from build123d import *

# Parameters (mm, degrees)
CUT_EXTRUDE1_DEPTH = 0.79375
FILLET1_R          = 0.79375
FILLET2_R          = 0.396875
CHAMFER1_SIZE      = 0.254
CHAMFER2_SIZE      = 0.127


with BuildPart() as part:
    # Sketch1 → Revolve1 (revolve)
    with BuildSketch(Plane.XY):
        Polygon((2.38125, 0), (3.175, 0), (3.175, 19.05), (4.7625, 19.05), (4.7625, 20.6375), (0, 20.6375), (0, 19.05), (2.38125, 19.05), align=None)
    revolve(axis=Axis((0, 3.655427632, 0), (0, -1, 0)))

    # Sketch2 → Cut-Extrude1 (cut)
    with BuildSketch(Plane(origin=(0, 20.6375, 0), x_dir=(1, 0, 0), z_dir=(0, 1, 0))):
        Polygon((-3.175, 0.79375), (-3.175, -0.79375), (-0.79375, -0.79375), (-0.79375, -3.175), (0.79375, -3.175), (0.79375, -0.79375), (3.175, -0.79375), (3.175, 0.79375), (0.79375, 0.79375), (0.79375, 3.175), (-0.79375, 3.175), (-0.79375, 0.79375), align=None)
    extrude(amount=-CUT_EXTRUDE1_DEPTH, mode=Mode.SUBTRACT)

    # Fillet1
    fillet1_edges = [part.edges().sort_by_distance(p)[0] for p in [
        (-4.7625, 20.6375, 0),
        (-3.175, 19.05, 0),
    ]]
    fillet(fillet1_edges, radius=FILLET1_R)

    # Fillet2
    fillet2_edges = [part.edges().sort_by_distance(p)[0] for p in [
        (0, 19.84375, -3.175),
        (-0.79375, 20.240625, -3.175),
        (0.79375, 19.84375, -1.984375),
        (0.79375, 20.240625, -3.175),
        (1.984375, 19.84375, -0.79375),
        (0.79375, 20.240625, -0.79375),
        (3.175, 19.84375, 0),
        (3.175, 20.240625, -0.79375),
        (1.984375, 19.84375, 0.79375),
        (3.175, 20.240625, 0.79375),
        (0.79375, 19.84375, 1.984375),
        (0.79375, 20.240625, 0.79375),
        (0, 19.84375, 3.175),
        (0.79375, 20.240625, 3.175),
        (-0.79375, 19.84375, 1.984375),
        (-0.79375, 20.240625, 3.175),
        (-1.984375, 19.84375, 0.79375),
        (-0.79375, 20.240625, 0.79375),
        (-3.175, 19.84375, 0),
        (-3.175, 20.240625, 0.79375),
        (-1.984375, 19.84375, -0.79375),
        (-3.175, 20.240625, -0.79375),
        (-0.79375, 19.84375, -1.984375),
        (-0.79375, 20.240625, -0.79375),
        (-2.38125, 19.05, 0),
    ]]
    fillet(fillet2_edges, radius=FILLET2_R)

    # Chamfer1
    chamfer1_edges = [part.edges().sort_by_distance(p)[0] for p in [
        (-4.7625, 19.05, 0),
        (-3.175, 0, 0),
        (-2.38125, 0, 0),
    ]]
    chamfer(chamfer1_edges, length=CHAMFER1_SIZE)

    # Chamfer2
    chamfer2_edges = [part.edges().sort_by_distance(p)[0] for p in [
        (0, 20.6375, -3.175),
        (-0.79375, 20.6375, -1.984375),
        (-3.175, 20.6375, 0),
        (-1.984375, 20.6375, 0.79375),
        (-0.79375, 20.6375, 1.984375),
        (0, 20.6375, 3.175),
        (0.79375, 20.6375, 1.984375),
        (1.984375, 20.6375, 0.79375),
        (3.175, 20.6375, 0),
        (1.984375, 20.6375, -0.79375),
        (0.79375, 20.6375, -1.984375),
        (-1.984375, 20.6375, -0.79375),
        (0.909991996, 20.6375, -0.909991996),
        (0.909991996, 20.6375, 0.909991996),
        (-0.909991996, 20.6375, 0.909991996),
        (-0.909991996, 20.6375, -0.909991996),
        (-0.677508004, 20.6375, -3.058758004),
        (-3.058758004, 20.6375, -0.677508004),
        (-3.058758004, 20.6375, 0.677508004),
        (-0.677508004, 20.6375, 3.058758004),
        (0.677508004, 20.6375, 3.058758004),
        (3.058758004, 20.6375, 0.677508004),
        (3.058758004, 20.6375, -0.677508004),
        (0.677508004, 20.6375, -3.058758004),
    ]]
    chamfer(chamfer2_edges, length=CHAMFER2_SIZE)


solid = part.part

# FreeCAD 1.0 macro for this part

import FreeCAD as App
import Part
import Sketcher

V = App.Vector
Q = App.Units.Quantity


def edges_at(feature, points):
    """Names of the edges that pass closest to the given points."""
    edges = feature.Shape.Edges
    near = lambda p: min(range(len(edges)), key=lambda i: edges[i].distToShape(Part.Vertex(*p))[0])
    return sorted({f"Edge{near(p) + 1}" for p in points})

doc = App.newDocument("Part")
body = doc.addObject("PartDesign::Body", "Body")

# Sketch on XY plane
sketch1 = body.newObject("Sketcher::SketchObject", "Sketch")
sketch1.AttachmentSupport = (doc.getObject("XY_Plane"), [""])
sketch1.MapMode = "FlatFace"
sketch1.addGeometry(Part.LineSegment(V(2.4, 0, 0), V(3.2, 0, 0)), False)
sketch1.addGeometry(Part.LineSegment(V(3.2, 0, 0), V(3.2, 19.1, 0)), False)
sketch1.addGeometry(Part.LineSegment(V(3.2, 19.1, 0), V(4.8, 19.1, 0)), False)
sketch1.addGeometry(Part.LineSegment(V(4.8, 19.1, 0), V(4.8, 20.6, 0)), False)
sketch1.addGeometry(Part.LineSegment(V(4.8, 20.6, 0), V(0, 20.6, 0)), False)
sketch1.addGeometry(Part.LineSegment(V(0, 20.6, 0), V(0, 19.1, 0)), False)
sketch1.addGeometry(Part.LineSegment(V(0, 19.1, 0), V(2.4, 19.1, 0)), False)
sketch1.addGeometry(Part.LineSegment(V(2.4, 19.1, 0), V(2.4, 0, 0)), False)
sketch1.addConstraint(Sketcher.Constraint("Coincident", 0, 2, 1, 1))
sketch1.addConstraint(Sketcher.Constraint("Coincident", 1, 2, 2, 1))
sketch1.addConstraint(Sketcher.Constraint("Coincident", 2, 2, 3, 1))
sketch1.addConstraint(Sketcher.Constraint("Coincident", 3, 2, 4, 1))
sketch1.addConstraint(Sketcher.Constraint("Coincident", 4, 2, 5, 1))
sketch1.addConstraint(Sketcher.Constraint("Coincident", 5, 2, 6, 1))
sketch1.addConstraint(Sketcher.Constraint("Coincident", 6, 2, 7, 1))
sketch1.addConstraint(Sketcher.Constraint("Coincident", 7, 2, 0, 1))
sketch1.addConstraint(Sketcher.Constraint("Horizontal", 0))
sketch1.addConstraint(Sketcher.Constraint("Vertical", 1))
sketch1.addConstraint(Sketcher.Constraint("Horizontal", 2))
sketch1.addConstraint(Sketcher.Constraint("Vertical", 3))
sketch1.addConstraint(Sketcher.Constraint("Horizontal", 4))
sketch1.addConstraint(Sketcher.Constraint("Vertical", 5))
sketch1.addConstraint(Sketcher.Constraint("Horizontal", 6))
sketch1.addConstraint(Sketcher.Constraint("Vertical", 7))
sketch1.addConstraint(Sketcher.Constraint("PointOnObject", 0, 2, -1))
sketch1.addConstraint(Sketcher.Constraint("PointOnObject", 4, 2, -2))
sketch1.addConstraint(Sketcher.Constraint("Horizontal", 2, 2, 5, 2))
sketch1.addConstraint(Sketcher.Constraint("Equal", 2, 3))
sketch1.addConstraint(Sketcher.Constraint("DistanceY", 1, 1, 1, 2, Q("0.75 in")))
sketch1.addConstraint(Sketcher.Constraint("DistanceX", 0, 1, 0, 2, Q("0.03125 in")))
sketch1.addConstraint(Sketcher.Constraint("DistanceX", 2, 1, 2, 2, Q("0.0625 in")))
sketch1.addConstraint(Sketcher.Constraint("DistanceX", 4, 2, 4, 1, Q("0.1875 in")))
revolution = body.newObject("PartDesign::Revolution", "Revolution")
revolution.Profile = sketch1
revolution.ReferenceAxis = (sketch1, ["V_Axis"])
revolution.Angle = 360

# Sketch on XZ plane
sketch2 = body.newObject("Sketcher::SketchObject", "Sketch001")
sketch2.AttachmentSupport = (doc.getObject("XZ_Plane"), [""])
sketch2.MapMode = "FlatFace"
sketch2.AttachmentOffset = App.Placement(V(0, 0, -0.8125 * 25.4), App.Rotation())
sketch2.addGeometry(Part.LineSegment(V(-3.2, -0.8, 0), V(-3.2, 0.8, 0)), False)
sketch2.addGeometry(Part.LineSegment(V(-3.2, 0.8, 0), V(-0.8, 0.8, 0)), False)
sketch2.addGeometry(Part.LineSegment(V(-0.8, 0.8, 0), V(-0.8, 3.2, 0)), False)
sketch2.addGeometry(Part.LineSegment(V(-0.8, 3.2, 0), V(0.8, 3.2, 0)), False)
sketch2.addGeometry(Part.LineSegment(V(0.8, 3.2, 0), V(0.8, 0.8, 0)), False)
sketch2.addGeometry(Part.LineSegment(V(0.8, 0.8, 0), V(3.2, 0.8, 0)), False)
sketch2.addGeometry(Part.LineSegment(V(3.2, 0.8, 0), V(3.2, -0.8, 0)), False)
sketch2.addGeometry(Part.LineSegment(V(3.2, -0.8, 0), V(0.8, -0.8, 0)), False)
sketch2.addGeometry(Part.LineSegment(V(0.8, -0.8, 0), V(0.8, -3.2, 0)), False)
sketch2.addGeometry(Part.LineSegment(V(0.8, -3.2, 0), V(-0.8, -3.2, 0)), False)
sketch2.addGeometry(Part.LineSegment(V(-0.8, -3.2, 0), V(-0.8, -0.8, 0)), False)
sketch2.addGeometry(Part.LineSegment(V(-0.8, -0.8, 0), V(-3.2, -0.8, 0)), False)
sketch2.addConstraint(Sketcher.Constraint("Coincident", 0, 2, 1, 1))
sketch2.addConstraint(Sketcher.Constraint("Coincident", 1, 2, 2, 1))
sketch2.addConstraint(Sketcher.Constraint("Coincident", 2, 2, 3, 1))
sketch2.addConstraint(Sketcher.Constraint("Coincident", 3, 2, 4, 1))
sketch2.addConstraint(Sketcher.Constraint("Coincident", 4, 2, 5, 1))
sketch2.addConstraint(Sketcher.Constraint("Coincident", 5, 2, 6, 1))
sketch2.addConstraint(Sketcher.Constraint("Coincident", 6, 2, 7, 1))
sketch2.addConstraint(Sketcher.Constraint("Coincident", 7, 2, 8, 1))
sketch2.addConstraint(Sketcher.Constraint("Coincident", 8, 2, 9, 1))
sketch2.addConstraint(Sketcher.Constraint("Coincident", 9, 2, 10, 1))
sketch2.addConstraint(Sketcher.Constraint("Coincident", 10, 2, 11, 1))
sketch2.addConstraint(Sketcher.Constraint("Coincident", 11, 2, 0, 1))
sketch2.addConstraint(Sketcher.Constraint("Vertical", 0))
sketch2.addConstraint(Sketcher.Constraint("Horizontal", 1))
sketch2.addConstraint(Sketcher.Constraint("Vertical", 2))
sketch2.addConstraint(Sketcher.Constraint("Horizontal", 3))
sketch2.addConstraint(Sketcher.Constraint("Vertical", 4))
sketch2.addConstraint(Sketcher.Constraint("Horizontal", 5))
sketch2.addConstraint(Sketcher.Constraint("Vertical", 6))
sketch2.addConstraint(Sketcher.Constraint("Horizontal", 7))
sketch2.addConstraint(Sketcher.Constraint("Vertical", 8))
sketch2.addConstraint(Sketcher.Constraint("Horizontal", 9))
sketch2.addConstraint(Sketcher.Constraint("Vertical", 10))
sketch2.addConstraint(Sketcher.Constraint("Horizontal", 11))
sketch2.addConstraint(Sketcher.Constraint("Symmetric", 0, 2, 6, 2, -1, 1))
sketch2.addConstraint(Sketcher.Constraint("Symmetric", 2, 2, 8, 2, -1, 1))
sketch2.addConstraint(Sketcher.Constraint("Symmetric", 4, 2, 10, 2, -1, 1))
sketch2.addConstraint(Sketcher.Constraint("Symmetric", 1, 2, 4, 2, -2))
sketch2.addConstraint(Sketcher.Constraint("Equal", 9, 0))
sketch2.addConstraint(Sketcher.Constraint("Equal", 11, 2))
sketch2.addConstraint(Sketcher.Constraint("DistanceX", 1, 1, 1, 2, Q("0.09375 in")))
sketch2.addConstraint(Sketcher.Constraint("DistanceX", 3, 1, 3, 2, Q("0.0625 in")))
pocket1 = body.newObject("PartDesign::Pocket", "Pocket")
pocket1.Profile = sketch2
pocket1.Length = Q("0.03125 in")
pocket1.Reversed = True
doc.recompute()

fillet = body.newObject("PartDesign::Fillet", "Fillet")
fillet.Base = (pocket1, edges_at(pocket1, [(-4.763, 20.637, 0), (-3.175, 19.05, 0)]))
fillet.Radius = Q("0.03125 in")
doc.recompute()

fillet2 = body.newObject("PartDesign::Fillet", "Fillet001")
fillet2.Base = (fillet, edges_at(fillet, [
    (0, 19.844, -3.175),
    (-0.794, 20.241, -3.175),
    (0.794, 19.844, -1.984),
    (0.794, 20.241, -3.175),
    (1.984, 19.844, -0.794),
    (0.794, 20.241, -0.794),
    (3.175, 19.844, 0),
    (3.175, 20.241, -0.794),
    (1.984, 19.844, 0.794),
    (3.175, 20.241, 0.794),
    (0.794, 19.844, 1.984),
    (0.794, 20.241, 0.794),
    (0, 19.844, 3.175),
    (0.794, 20.241, 3.175),
    (-0.794, 19.844, 1.984),
    (-0.794, 20.241, 3.175),
    (-1.984, 19.844, 0.794),
    (-0.794, 20.241, 0.794),
    (-3.175, 19.844, 0),
    (-3.175, 20.241, 0.794),
    (-1.984, 19.844, -0.794),
    (-3.175, 20.241, -0.794),
    (-0.794, 19.844, -1.984),
    (-0.794, 20.241, -0.794),
    (-2.381, 19.05, 0),
]))
fillet2.Radius = Q("0.015625 in")
doc.recompute()

chamfer = body.newObject("PartDesign::Chamfer", "Chamfer")
chamfer.Base = (fillet2, edges_at(fillet2, [(-4.763, 19.05, 0), (-3.175, 0, 0), (-2.381, 0, 0)]))
chamfer.Size = Q("0.01 in")
doc.recompute()

chamfer2 = body.newObject("PartDesign::Chamfer", "Chamfer001")
chamfer2.Base = (chamfer, edges_at(chamfer, [
    (0, 20.637, -3.175),
    (-0.794, 20.637, -1.984),
    (-3.175, 20.637, 0),
    (-1.984, 20.637, 0.794),
    (-0.794, 20.637, 1.984),
    (0, 20.637, 3.175),
    (0.794, 20.637, 1.984),
    (1.984, 20.637, 0.794),
    (3.175, 20.637, 0),
    (1.984, 20.637, -0.794),
    (0.794, 20.637, -1.984),
    (-1.984, 20.637, -0.794),
    (0.91, 20.637, -0.91),
    (0.91, 20.637, 0.91),
    (-0.91, 20.637, 0.91),
    (-0.91, 20.637, -0.91),
    (-0.678, 20.637, -3.059),
    (-3.059, 20.637, -0.678),
    (-3.059, 20.637, 0.678),
    (-0.678, 20.637, 3.059),
    (0.678, 20.637, 3.059),
    (3.059, 20.637, 0.678),
    (3.059, 20.637, -0.678),
    (0.678, 20.637, -3.059),
]))
chamfer2.Size = Q("0.005 in")

doc.recompute()
